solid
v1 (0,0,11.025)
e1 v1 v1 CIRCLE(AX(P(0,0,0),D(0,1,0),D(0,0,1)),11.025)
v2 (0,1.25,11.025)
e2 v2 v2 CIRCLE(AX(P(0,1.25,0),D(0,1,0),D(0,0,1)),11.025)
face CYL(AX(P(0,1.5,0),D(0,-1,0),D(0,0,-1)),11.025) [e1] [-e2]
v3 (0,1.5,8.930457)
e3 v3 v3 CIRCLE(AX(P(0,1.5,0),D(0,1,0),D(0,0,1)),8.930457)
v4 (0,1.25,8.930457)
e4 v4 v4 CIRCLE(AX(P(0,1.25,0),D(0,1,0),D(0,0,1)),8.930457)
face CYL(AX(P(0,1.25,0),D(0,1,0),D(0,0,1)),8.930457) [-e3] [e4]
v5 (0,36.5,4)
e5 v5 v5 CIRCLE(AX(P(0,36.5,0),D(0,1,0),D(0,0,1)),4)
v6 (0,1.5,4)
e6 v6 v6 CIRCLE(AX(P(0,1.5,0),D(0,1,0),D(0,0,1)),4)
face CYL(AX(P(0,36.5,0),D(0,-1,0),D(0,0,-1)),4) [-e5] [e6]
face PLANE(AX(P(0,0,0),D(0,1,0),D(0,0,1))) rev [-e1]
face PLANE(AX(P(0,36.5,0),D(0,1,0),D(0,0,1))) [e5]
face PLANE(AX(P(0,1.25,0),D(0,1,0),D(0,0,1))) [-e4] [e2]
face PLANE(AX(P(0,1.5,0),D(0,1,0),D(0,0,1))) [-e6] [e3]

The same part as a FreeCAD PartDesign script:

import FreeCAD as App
import Part
import Sketcher

doc = App.newDocument("Part")
body = doc.addObject("PartDesign::Body", "Body")

sketch1 = doc.addObject("Sketcher::SketchObject", "Sketch")
body.addObject(sketch1)
sketch1.AttachmentSupport = (doc.XZ_Plane, [""])
sketch1.MapMode = "FlatFace"
sketch1.addGeometry(Part.Circle(App.Vector(0, 0, 0), App.Vector(0, 0, 1), 11), False)
sketch1.addConstraint([
    Sketcher.Constraint("Coincident", 0, 3, -1, 1),
    Sketcher.Constraint("Diameter", 0, 22.05),
])
pad1 = doc.addObject("PartDesign::Pad", "Pad")
body.addObject(pad1)
pad1.Profile = sketch1
pad1.Length = 1.5
pad1.Reversed = True

sketch2 = doc.addObject("Sketcher::SketchObject", "Sketch001")
body.addObject(sketch2)
sketch2.AttachmentSupport = (doc.XZ_Plane, [""])
sketch2.MapMode = "FlatFace"
sketch2.AttachmentOffset = App.Placement(App.Vector(0, 0, -1.25), App.Rotation())
sketch2.addGeometry([
    Part.Circle(App.Vector(0, 0, 0), App.Vector(0, 0, 1), 11),
    Part.Circle(App.Vector(0, 0, 0), App.Vector(0, 0, 1), 9),
], False)
sketch2.addConstraint([
    Sketcher.Constraint("Coincident", 0, 3, -1, 1),
    Sketcher.Constraint("Coincident", 1, 3, -1, 1),
    Sketcher.Constraint("Diameter", 0, 22.05),
    Sketcher.Constraint("Diameter", 1, 17.860915),
])
pocket1 = doc.addObject("PartDesign::Pocket", "Pocket")
body.addObject(pocket1)
pocket1.Profile = sketch2
pocket1.Length = 0.25

sketch3 = doc.addObject("Sketcher::SketchObject", "Sketch002")
body.addObject(sketch3)
sketch3.AttachmentSupport = (doc.XZ_Plane, [""])
sketch3.MapMode = "FlatFace"
sketch3.AttachmentOffset = App.Placement(App.Vector(0, 0, -1.5), App.Rotation())
sketch3.addGeometry(Part.Circle(App.Vector(0, 0, 0), App.Vector(0, 0, 1), 4), False)
sketch3.addConstraint([
    Sketcher.Constraint("Coincident", 0, 3, -1, 1),
    Sketcher.Constraint("Diameter", 0, 8.0),
])
pad2 = doc.addObject("PartDesign::Pad", "Pad001")
body.addObject(pad2)
pad2.Profile = sketch3
pad2.Length = 35
pad2.Reversed = True

doc.recompute()
